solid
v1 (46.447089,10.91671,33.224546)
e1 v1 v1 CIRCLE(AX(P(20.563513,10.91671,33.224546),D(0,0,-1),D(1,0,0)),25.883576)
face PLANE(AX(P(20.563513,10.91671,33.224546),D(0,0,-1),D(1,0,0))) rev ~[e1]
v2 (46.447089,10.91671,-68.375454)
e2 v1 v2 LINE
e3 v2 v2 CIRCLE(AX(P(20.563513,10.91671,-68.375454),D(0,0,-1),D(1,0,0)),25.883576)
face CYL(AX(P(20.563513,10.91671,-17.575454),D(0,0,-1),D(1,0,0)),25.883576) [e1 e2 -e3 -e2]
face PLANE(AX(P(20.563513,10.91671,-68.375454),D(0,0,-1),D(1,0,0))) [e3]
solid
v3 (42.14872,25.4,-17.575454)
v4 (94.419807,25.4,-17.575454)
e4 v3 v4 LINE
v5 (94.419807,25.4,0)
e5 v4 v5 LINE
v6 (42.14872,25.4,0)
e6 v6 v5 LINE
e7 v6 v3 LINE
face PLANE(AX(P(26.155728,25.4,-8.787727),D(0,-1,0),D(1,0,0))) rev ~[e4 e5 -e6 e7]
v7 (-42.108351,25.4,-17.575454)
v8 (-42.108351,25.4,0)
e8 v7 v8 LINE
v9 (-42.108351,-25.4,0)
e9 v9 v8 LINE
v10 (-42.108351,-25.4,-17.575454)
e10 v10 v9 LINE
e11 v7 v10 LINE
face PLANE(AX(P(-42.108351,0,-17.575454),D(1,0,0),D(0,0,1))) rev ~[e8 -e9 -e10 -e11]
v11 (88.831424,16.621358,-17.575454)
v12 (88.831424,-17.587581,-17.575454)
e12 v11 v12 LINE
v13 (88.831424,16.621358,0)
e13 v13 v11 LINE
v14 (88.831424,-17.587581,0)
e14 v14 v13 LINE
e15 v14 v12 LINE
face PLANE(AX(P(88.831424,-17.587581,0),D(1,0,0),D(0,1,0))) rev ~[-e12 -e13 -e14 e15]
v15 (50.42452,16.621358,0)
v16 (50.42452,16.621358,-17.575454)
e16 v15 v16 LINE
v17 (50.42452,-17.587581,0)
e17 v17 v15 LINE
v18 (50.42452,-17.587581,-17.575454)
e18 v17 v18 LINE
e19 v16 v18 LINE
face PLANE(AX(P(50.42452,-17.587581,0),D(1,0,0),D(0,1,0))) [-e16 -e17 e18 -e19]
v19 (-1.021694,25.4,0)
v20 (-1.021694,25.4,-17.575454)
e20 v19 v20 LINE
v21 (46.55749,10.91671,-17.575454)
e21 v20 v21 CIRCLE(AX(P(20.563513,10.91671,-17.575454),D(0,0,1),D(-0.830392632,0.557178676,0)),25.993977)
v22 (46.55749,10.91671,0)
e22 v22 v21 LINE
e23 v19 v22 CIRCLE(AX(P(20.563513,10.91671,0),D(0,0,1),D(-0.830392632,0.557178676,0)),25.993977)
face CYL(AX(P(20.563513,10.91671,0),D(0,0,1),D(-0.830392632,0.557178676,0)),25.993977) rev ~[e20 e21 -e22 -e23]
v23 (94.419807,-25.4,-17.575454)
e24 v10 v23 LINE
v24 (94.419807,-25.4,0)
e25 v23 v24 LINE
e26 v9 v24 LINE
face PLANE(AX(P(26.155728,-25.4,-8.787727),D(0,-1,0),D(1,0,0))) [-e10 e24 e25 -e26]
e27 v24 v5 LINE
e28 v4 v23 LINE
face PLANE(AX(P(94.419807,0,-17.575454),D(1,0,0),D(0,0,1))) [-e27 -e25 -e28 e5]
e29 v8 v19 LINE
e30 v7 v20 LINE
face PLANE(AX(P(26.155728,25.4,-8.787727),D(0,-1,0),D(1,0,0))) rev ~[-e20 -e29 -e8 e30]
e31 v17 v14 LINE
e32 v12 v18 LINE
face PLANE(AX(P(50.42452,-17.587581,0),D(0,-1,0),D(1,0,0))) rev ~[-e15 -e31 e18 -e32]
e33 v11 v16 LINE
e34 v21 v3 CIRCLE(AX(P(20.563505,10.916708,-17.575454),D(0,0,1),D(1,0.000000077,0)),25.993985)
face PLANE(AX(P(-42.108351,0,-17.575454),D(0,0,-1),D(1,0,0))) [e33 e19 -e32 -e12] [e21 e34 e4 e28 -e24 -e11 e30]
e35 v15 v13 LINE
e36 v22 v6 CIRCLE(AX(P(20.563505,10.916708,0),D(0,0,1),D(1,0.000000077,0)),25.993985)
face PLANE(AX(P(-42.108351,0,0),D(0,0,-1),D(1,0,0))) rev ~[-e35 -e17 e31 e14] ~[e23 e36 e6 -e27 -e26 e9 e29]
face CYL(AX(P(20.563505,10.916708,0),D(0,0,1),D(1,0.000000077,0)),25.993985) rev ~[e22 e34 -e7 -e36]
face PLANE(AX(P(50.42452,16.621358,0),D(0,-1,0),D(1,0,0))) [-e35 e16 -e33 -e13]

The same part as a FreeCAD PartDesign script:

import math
import FreeCAD as App
import Part
import Sketcher

V = App.Vector
Q = App.Units.Quantity

doc = App.newDocument("Part")
body = doc.addObject("PartDesign::Body", "Body")

sketch1 = body.newObject("Sketcher::SketchObject", "Sketch")
sketch1.AttachmentSupport = (doc.getObject("XZ_Plane"), [""])
sketch1.MapMode = "FlatFace"
sketch1.addGeometry([
    Part.LineSegment(V(-42.108351, 0, 0), V(-42.108351, -17.575454, 0)),
    Part.LineSegment(V(-42.108351, -17.575454, 0), V(94.419807, -17.575454, 0)),
    Part.LineSegment(V(94.419807, -17.575454, 0), V(94.419807, 0, 0)),
    Part.LineSegment(V(94.419807, 0, 0), V(-42.108351, 0, 0)),
], False)
sketch1.addConstraint([
    Sketcher.Constraint("Coincident", 0, 2, 1, 1),
    Sketcher.Constraint("Coincident", 1, 2, 2, 1),
    Sketcher.Constraint("Coincident", 2, 2, 3, 1),
    Sketcher.Constraint("Coincident", 3, 2, 0, 1),
    Sketcher.Constraint("Vertical", 0),
    Sketcher.Constraint("Horizontal", 1),
    Sketcher.Constraint("Vertical", 2),
    Sketcher.Constraint("Horizontal", 3),
    Sketcher.Constraint("PointOnObject", 2, 2, -1),
    Sketcher.Constraint("DistanceX", 1, 1, 1, 2, 136.528157),
    Sketcher.Constraint("DistanceY", 0, 2, 0, 1, 17.575454),
    Sketcher.Constraint("DistanceX", 0, 2, -1, 1, 42.108351),
])
pad1 = body.newObject("PartDesign::Pad", "Pad")
pad1.Profile = sketch1
pad1.Type = "TwoLengths"
pad1.Length = Q("1 in")
pad1.Length2 = Q("1 in")

sketch2 = body.newObject("Sketcher::SketchObject", "Sketch001")
sketch2.AttachmentSupport = (doc.getObject("XY_Plane"), [""])
sketch2.MapMode = "FlatFace"
sketch2.addGeometry([
    Part.ArcOfCircle(Part.Circle(V(20.563513, 10.91671, 0), V(0, 0, 1), 25.993977), math.radians(33.860909), math.radians(146.139091)),
    Part.ArcOfCircle(Part.Circle(V(20.563513, 10.91671, 0), V(0, 0, 1), 25.993977), math.radians(146.139092), math.radians(359.999999)),
    Part.ArcOfCircle(Part.Circle(V(20.563505, 10.916708, 0), V(0, 0, 1), 25.993985), math.radians(0.000004), math.radians(33.860903)),
], False)
sketch2.addConstraint([
    Sketcher.Constraint("Tangent", 0, 2, 1, 1),
    Sketcher.Constraint("Tangent", 1, 2, 2, 1),
    Sketcher.Constraint("Tangent", 2, 2, 0, 1),
    Sketcher.Constraint("Horizontal", 0, 3, 1, 2),
    Sketcher.Constraint("Horizontal", 0, 2, 2, 2),
    Sketcher.Constraint("DistanceY", -1, 1, 0, 2, Q("1 in")),
    Sketcher.Constraint("Radius", 0, 25.993977),
    Sketcher.Constraint("DistanceX", 0, 2, 2, 3, 21.585199),
    Sketcher.Constraint("DistanceX", -1, 1, 1, 2, 46.55749),
])
pocket1 = body.newObject("PartDesign::Pocket", "Pocket")
pocket1.Profile = sketch2
pocket1.Length = Q("1 in")

sketch3 = body.newObject("Sketcher::SketchObject", "Sketch002")
sketch3.AttachmentSupport = (doc.getObject("XY_Plane"), [""])
sketch3.MapMode = "FlatFace"
sketch3.addGeometry([
    Part.LineSegment(V(50.42452, 16.621358, 0), V(50.42452, -17.587581, 0)),
    Part.LineSegment(V(50.42452, -17.587581, 0), V(88.831424, -17.587581, 0)),
    Part.LineSegment(V(88.831424, -17.587581, 0), V(88.831424, 16.621358, 0)),
    Part.LineSegment(V(88.831424, 16.621358, 0), V(50.42452, 16.621358, 0)),
], False)
sketch3.addConstraint([
    Sketcher.Constraint("Coincident", 0, 2, 1, 1),
    Sketcher.Constraint("Coincident", 1, 2, 2, 1),
    Sketcher.Constraint("Coincident", 2, 2, 3, 1),
    Sketcher.Constraint("Coincident", 3, 2, 0, 1),
    Sketcher.Constraint("Vertical", 0),
    Sketcher.Constraint("Horizontal", 1),
    Sketcher.Constraint("Vertical", 2),
    Sketcher.Constraint("Horizontal", 3),
    Sketcher.Constraint("DistanceX", -1, 1, 1, 2, Q("3.4973002 in")),
    Sketcher.Constraint("DistanceY", 0, 2, 0, 1, 34.208939),
    Sketcher.Constraint("DistanceX", 1, 1, 1, 2, 38.406905),
    Sketcher.Constraint("DistanceY", 0, 2, -1, 1, 17.587581),
])
pocket2 = body.newObject("PartDesign::Pocket", "Pocket001")
pocket2.Profile = sketch3
pocket2.Length = Q("1 in")
body2 = doc.addObject("PartDesign::Body", "Body001")

sketch4 = body2.newObject("Sketcher::SketchObject", "Sketch003")
sketch4.AttachmentSupport = (doc.getObject("XY_Plane001"), [""])
sketch4.MapMode = "FlatFace"
sketch4.AttachmentOffset = App.Placement(V(0, 0, -17.575454), App.Rotation())
sketch4.addGeometry(Part.Circle(V(20.563513, 10.91671, 0), V(0, 0, 1), 25.883576), False)
sketch4.addConstraint([
    Sketcher.Constraint("Diameter", 0, 51.767152),
    Sketcher.Constraint("DistanceY", -1, 1, 0, 3, 10.91671),
    Sketcher.Constraint("DistanceX", -1, 1, 0, 3, 20.563513),
])
pad2 = body2.newObject("PartDesign::Pad", "Pad001")
pad2.Profile = sketch4
pad2.Type = "TwoLengths"
pad2.Length = Q("2 in")
pad2.Length2 = Q("2 in")
pad2.Reversed = True

doc.recompute()
